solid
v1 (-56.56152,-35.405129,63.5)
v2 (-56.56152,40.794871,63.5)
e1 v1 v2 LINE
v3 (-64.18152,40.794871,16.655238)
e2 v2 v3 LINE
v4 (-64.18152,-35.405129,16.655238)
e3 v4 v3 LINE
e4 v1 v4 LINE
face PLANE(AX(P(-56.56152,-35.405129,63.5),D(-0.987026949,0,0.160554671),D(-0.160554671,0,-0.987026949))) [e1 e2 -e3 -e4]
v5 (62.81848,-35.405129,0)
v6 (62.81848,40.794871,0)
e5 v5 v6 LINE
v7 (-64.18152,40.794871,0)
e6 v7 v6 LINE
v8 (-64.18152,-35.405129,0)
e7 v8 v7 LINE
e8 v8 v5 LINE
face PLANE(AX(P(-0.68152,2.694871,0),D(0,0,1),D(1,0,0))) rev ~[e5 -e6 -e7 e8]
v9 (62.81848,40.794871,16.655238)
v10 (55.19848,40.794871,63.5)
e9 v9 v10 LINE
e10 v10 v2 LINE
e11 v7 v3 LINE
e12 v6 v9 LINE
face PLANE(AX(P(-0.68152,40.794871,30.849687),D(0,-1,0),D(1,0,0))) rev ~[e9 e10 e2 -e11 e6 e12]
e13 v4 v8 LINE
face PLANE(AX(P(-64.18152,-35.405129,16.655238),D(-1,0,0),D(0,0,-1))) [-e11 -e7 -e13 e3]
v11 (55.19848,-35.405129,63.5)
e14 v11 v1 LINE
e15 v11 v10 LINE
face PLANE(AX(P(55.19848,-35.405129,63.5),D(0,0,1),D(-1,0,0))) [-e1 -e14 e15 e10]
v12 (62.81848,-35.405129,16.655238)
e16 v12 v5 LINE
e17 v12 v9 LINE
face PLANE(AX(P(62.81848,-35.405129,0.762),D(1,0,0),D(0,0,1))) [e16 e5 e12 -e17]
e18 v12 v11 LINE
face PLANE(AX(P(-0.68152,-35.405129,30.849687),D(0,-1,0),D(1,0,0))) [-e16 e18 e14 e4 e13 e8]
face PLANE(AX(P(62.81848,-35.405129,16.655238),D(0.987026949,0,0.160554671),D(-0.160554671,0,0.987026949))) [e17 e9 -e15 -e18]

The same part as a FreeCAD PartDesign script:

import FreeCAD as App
import Part
import Sketcher

V = App.Vector
Q = App.Units.Quantity

doc = App.newDocument("Part")
body = doc.addObject("PartDesign::Body", "Body")

# Sketch on XY plane
sketch1 = body.newObject("Sketcher::SketchObject", "Sketch")
sketch1.AttachmentSupport = (doc.getObject("XY_Plane"), [""])
sketch1.MapMode = "FlatFace"
sketch1.addGeometry(Part.LineSegment(V(-64.18152, 40.794871, 0), V(-64.18152, -35.405129, 0)), False)
sketch1.addGeometry(Part.LineSegment(V(-64.18152, -35.405129, 0), V(62.81848, -35.405129, 0)), False)
sketch1.addGeometry(Part.LineSegment(V(62.81848, -35.405129, 0), V(62.81848, 40.794871, 0)), False)
sketch1.addGeometry(Part.LineSegment(V(62.81848, 40.794871, 0), V(-64.18152, 40.794871, 0)), False)
sketch1.addConstraint(Sketcher.Constraint("Coincident", 0, 2, 1, 1))
sketch1.addConstraint(Sketcher.Constraint("Coincident", 1, 2, 2, 1))
sketch1.addConstraint(Sketcher.Constraint("Coincident", 2, 2, 3, 1))
sketch1.addConstraint(Sketcher.Constraint("Coincident", 3, 2, 0, 1))
sketch1.addConstraint(Sketcher.Constraint("Vertical", 0))
sketch1.addConstraint(Sketcher.Constraint("Horizontal", 1))
sketch1.addConstraint(Sketcher.Constraint("Vertical", 2))
sketch1.addConstraint(Sketcher.Constraint("Horizontal", 3))
sketch1.addConstraint(Sketcher.Constraint("DistanceX", 1, 1, 1, 2, Q("5 in")))
sketch1.addConstraint(Sketcher.Constraint("DistanceY", 0, 2, 0, 1, Q("3 in")))
sketch1.addConstraint(Sketcher.Constraint("DistanceX", 0, 2, -1, 1, Q("64.18152 mm")))
sketch1.addConstraint(Sketcher.Constraint("DistanceY", 0, 2, -1, 1, Q("35.405129 mm")))
pad1 = body.newObject("PartDesign::Pad", "Pad")
pad1.Profile = sketch1
pad1.Length = Q("0.03 in")

# Sketch on XZ plane
sketch2 = body.newObject("Sketcher::SketchObject", "Sketch001")
sketch2.AttachmentSupport = (doc.getObject("XZ_Plane"), [""])
sketch2.MapMode = "FlatFace"
sketch2.AttachmentOffset = App.Placement(V(0, 0, 35.405129), App.Rotation())
sketch2.addGeometry(Part.LineSegment(V(-64.18152, 0.762, 0), V(62.81848, 0.762, 0)), False)
sketch2.addGeometry(Part.LineSegment(V(62.81848, 0.762, 0), V(62.81848, 16.655238, 0)), False)
sketch2.addGeometry(Part.LineSegment(V(62.81848, 16.655238, 0), V(55.19848, 63.5, 0)), False)
sketch2.addGeometry(Part.LineSegment(V(55.19848, 63.5, 0), V(-56.56152, 63.5, 0)), False)
sketch2.addGeometry(Part.LineSegment(V(-56.56152, 63.5, 0), V(-64.18152, 16.655238, 0)), False)
sketch2.addGeometry(Part.LineSegment(V(-64.18152, 16.655238, 0), V(-64.18152, 0.762, 0)), False)
sketch2.addConstraint(Sketcher.Constraint("Coincident", 0, 2, 1, 1))
sketch2.addConstraint(Sketcher.Constraint("Coincident", 1, 2, 2, 1))
sketch2.addConstraint(Sketcher.Constraint("Coincident", 2, 2, 3, 1))
sketch2.addConstraint(Sketcher.Constraint("Coincident", 3, 2, 4, 1))
sketch2.addConstraint(Sketcher.Constraint("Coincident", 4, 2, 5, 1))
sketch2.addConstraint(Sketcher.Constraint("Coincident", 5, 2, 0, 1))
sketch2.addConstraint(Sketcher.Constraint("Horizontal", 0))
sketch2.addConstraint(Sketcher.Constraint("Vertical", 1))
sketch2.addConstraint(Sketcher.Constraint("Horizontal", 3))
sketch2.addConstraint(Sketcher.Constraint("Vertical", 5))
sketch2.addConstraint(Sketcher.Constraint("Horizontal", 1, 2, 4, 2))
sketch2.addConstraint(Sketcher.Constraint("Equal", 2, 4))
sketch2.addConstraint(Sketcher.Constraint("DistanceX", 0, 1, 0, 2, Q("5 in")))
sketch2.addConstraint(Sketcher.Constraint("DistanceX", 3, 2, 3, 1, Q("4.4 in")))
sketch2.addConstraint(Sketcher.Constraint("DistanceY", -1, 1, 2, 2, Q("2.5 in")))
sketch2.addConstraint(Sketcher.Constraint("DistanceY", -1, 1, 0, 2, Q("0.03 in")))
sketch2.addConstraint(Sketcher.Constraint("Distance", 2, Q("47.460469 mm")))
sketch2.addConstraint(Sketcher.Constraint("DistanceX", -1, 1, 0, 2, Q("62.81848 mm")))
pad2 = body.newObject("PartDesign::Pad", "Pad001")
pad2.Profile = sketch2
pad2.Length = Q("3 in")
pad2.Reversed = True

doc.recompute()
